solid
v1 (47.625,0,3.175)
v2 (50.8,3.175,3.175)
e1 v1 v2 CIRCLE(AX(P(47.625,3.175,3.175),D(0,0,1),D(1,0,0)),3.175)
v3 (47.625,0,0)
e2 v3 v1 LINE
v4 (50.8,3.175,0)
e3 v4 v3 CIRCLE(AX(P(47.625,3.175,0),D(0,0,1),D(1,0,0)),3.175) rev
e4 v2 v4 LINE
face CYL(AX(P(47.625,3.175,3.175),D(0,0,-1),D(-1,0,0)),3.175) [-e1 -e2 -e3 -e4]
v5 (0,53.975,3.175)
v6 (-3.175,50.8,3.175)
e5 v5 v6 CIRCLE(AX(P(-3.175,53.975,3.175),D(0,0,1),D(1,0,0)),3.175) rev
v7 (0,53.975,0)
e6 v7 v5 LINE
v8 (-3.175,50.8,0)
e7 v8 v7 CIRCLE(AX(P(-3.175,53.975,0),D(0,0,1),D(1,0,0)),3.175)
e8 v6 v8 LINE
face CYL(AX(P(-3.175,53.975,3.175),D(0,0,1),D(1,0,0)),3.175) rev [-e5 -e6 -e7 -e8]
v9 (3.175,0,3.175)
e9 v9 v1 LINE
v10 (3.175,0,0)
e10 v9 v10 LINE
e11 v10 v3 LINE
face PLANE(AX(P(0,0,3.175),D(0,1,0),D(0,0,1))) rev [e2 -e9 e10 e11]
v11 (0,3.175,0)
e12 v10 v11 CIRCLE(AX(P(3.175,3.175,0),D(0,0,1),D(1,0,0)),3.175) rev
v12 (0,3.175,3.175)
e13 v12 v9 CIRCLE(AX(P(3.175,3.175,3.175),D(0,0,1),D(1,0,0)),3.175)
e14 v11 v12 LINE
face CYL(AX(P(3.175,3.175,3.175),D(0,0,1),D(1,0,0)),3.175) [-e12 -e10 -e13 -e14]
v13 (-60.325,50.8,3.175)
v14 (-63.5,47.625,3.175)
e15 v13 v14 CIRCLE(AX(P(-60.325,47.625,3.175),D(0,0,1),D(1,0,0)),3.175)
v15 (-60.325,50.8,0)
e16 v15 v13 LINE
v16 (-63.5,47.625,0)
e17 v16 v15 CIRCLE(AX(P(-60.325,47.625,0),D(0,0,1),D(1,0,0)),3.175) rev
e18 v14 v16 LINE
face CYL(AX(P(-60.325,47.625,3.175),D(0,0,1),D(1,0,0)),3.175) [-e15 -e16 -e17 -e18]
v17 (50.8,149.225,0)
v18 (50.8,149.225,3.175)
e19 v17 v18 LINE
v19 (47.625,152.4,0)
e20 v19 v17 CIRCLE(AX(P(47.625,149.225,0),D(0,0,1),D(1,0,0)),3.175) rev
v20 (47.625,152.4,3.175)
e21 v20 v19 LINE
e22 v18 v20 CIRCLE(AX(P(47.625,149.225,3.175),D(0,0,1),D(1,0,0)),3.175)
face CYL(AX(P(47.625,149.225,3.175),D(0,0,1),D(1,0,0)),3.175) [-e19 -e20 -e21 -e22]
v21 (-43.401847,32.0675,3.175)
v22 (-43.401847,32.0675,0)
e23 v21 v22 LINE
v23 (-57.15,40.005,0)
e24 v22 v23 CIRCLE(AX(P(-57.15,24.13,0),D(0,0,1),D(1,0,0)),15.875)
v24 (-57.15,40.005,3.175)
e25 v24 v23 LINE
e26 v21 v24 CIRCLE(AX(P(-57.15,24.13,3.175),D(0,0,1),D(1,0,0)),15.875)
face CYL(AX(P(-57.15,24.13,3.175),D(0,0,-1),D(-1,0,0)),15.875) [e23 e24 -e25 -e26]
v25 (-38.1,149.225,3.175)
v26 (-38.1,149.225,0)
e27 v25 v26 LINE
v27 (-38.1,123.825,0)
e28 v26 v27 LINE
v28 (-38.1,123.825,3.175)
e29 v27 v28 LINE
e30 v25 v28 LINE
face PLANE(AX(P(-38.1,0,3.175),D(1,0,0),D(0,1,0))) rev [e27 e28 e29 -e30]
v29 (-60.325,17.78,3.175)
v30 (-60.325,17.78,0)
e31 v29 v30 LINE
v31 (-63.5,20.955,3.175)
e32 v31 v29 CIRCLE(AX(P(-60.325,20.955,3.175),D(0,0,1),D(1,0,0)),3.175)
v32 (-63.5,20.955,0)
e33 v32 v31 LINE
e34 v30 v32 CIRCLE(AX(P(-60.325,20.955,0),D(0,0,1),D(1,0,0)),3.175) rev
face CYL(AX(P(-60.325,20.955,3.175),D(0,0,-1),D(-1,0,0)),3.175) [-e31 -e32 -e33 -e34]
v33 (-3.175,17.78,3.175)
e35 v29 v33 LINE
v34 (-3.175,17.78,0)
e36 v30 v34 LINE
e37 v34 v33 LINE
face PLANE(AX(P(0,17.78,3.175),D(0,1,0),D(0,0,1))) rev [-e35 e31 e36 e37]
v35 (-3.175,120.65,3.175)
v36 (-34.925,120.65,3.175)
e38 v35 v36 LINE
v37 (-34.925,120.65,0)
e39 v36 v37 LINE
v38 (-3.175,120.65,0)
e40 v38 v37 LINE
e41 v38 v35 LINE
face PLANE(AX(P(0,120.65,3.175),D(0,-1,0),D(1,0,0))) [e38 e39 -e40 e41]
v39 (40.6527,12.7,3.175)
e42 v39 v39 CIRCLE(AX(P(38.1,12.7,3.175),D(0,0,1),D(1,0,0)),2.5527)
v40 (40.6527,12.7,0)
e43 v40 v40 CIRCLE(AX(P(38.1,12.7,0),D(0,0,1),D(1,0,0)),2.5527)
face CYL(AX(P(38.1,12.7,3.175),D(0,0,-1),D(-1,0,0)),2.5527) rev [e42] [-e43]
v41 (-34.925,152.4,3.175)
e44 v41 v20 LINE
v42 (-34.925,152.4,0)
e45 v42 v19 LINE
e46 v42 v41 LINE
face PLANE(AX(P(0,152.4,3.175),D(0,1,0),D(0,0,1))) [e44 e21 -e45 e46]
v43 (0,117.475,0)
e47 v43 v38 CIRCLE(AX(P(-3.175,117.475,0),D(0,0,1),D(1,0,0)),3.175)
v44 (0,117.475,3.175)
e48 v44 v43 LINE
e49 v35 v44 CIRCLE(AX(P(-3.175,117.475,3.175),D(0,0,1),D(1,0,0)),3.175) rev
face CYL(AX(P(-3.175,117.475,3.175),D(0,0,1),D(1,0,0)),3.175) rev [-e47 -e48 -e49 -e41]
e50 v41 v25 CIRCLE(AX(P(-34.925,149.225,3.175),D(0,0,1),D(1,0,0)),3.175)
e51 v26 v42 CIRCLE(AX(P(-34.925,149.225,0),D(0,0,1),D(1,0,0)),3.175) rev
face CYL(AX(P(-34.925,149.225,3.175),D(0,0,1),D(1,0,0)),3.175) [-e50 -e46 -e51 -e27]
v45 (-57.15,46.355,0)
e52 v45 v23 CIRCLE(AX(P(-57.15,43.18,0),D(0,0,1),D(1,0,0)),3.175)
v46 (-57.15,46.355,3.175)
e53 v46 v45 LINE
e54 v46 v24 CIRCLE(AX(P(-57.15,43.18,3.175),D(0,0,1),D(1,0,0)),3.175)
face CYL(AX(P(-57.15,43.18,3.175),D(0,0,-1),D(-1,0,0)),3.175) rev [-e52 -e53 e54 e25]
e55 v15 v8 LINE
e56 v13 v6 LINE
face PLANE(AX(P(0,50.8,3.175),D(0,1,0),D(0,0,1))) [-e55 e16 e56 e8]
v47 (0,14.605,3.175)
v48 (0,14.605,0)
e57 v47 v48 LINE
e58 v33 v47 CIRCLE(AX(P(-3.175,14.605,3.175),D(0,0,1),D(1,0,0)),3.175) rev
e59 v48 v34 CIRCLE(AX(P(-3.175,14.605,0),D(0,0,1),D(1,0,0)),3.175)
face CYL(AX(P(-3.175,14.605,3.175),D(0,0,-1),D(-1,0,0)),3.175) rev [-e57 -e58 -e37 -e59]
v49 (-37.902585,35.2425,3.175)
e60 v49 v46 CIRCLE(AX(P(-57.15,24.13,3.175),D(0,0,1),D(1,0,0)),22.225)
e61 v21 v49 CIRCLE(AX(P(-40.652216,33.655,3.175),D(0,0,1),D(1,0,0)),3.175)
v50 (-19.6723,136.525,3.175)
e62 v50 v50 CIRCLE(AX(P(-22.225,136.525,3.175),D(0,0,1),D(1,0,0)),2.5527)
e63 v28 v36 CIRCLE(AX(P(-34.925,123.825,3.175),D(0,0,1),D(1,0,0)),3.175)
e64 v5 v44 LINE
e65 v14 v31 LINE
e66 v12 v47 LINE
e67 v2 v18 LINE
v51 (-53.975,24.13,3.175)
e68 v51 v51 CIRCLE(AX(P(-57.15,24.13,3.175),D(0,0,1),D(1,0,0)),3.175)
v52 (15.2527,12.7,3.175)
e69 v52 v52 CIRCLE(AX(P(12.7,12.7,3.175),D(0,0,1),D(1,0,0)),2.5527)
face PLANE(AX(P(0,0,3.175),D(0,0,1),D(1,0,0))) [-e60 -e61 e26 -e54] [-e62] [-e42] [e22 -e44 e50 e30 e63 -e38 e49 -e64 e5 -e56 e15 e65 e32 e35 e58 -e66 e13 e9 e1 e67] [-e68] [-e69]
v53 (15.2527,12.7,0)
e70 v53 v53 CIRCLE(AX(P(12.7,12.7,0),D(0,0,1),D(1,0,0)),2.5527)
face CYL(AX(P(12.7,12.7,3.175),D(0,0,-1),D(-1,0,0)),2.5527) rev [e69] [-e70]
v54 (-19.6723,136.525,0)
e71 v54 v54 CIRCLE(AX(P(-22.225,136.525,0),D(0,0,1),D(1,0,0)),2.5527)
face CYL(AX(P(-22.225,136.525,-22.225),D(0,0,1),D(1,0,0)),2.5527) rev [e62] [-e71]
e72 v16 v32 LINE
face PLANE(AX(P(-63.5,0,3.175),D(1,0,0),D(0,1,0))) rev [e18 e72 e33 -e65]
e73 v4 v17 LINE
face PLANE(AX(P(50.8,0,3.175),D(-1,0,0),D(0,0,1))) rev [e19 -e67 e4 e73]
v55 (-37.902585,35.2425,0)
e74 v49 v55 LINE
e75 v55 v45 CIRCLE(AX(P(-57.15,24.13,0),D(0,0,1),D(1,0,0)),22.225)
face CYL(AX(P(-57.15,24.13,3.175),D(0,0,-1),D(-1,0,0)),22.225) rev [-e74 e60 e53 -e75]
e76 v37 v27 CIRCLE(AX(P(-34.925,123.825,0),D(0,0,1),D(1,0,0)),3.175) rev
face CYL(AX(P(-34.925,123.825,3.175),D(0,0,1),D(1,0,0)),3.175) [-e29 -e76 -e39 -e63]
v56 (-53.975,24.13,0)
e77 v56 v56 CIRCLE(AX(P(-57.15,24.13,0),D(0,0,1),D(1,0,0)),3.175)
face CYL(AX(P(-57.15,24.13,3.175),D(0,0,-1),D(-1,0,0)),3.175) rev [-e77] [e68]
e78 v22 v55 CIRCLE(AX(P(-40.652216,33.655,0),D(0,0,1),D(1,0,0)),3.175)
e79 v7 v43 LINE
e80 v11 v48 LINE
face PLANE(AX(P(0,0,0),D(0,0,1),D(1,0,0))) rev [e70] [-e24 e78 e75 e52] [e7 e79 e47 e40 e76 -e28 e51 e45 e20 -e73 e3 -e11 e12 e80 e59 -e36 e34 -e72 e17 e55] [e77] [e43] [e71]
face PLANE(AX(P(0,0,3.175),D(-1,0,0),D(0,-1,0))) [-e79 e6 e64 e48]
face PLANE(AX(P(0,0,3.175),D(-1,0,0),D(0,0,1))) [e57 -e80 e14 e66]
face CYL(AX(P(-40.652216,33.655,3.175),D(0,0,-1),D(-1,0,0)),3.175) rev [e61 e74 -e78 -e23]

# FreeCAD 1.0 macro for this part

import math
import FreeCAD as App
import Part
import Sketcher
from FreeCAD import Vector
Q = App.Units.Quantity


def edges_at(feature, points):
    """Names of the edges that pass closest to the given points."""
    edges = feature.Shape.Edges
    near = lambda p: min(range(len(edges)), key=lambda i: edges[i].distToShape(Part.Vertex(*p))[0])
    return sorted({f"Edge{near(p) + 1}" for p in points})

doc = App.newDocument("Part")
body = doc.addObject("PartDesign::Body", "Body")

sketch1 = doc.addObject("Sketcher::SketchObject", "Sketch")
body.addObject(sketch1)
sketch1.AttachmentSupport = (doc.XY_Plane, [""])
sketch1.MapMode = "FlatFace"
sketch1.addGeometry(Part.LineSegment(Vector(0, 17.78, 0), Vector(0, 0, 0)), False)
sketch1.addGeometry(Part.LineSegment(Vector(0, 0, 0), Vector(50.8, 0, 0)), False)
sketch1.addGeometry(Part.LineSegment(Vector(50.8, 0, 0), Vector(50.8, 50.8, 0)), False)
sketch1.addGeometry(Part.LineSegment(Vector(50.8, 50.8, 0), Vector(-63.5, 50.8, 0)), False)
sketch1.addGeometry(Part.LineSegment(Vector(-63.5, 50.8, 0), Vector(-63.5, 17.78, 0)), False)
sketch1.addGeometry(Part.LineSegment(Vector(-63.5, 17.78, 0), Vector(0, 17.78, 0)), False)
sketch1.addGeometry(Part.Circle(Vector(12.7, 12.7, 0), Vector(0, 0, 1), 2.5527), False)
sketch1.addGeometry(Part.Circle(Vector(38.1, 12.7, 0), Vector(0, 0, 1), 2.5527), False)
sketch1.addGeometry(Part.ArcOfCircle(Part.Circle(Vector(-57.15, 24.13, 0), Vector(0, 0, 1), 22.225), math.radians(30), math.radians(90)), False)
sketch1.addGeometry(Part.ArcOfCircle(Part.Circle(Vector(-40.652216, 33.655, 0), Vector(0, 0, 1), 3.175), math.radians(-150), math.radians(30)), False)
sketch1.addGeometry(Part.ArcOfCircle(Part.Circle(Vector(-57.15, 24.13, 0), Vector(0, 0, 1), 15.875), math.radians(30), math.radians(90)), False)
sketch1.addGeometry(Part.ArcOfCircle(Part.Circle(Vector(-57.15, 43.18, 0), Vector(0, 0, 1), 3.175), math.radians(90), math.radians(270)), False)
sketch1.addGeometry(Part.Circle(Vector(-57.15, 24.13, 0), Vector(0, 0, 1), 3.175), False)
sketch1.addConstraint(Sketcher.Constraint("Coincident", 0, 2, 1, 1))
sketch1.addConstraint(Sketcher.Constraint("Coincident", 1, 2, 2, 1))
sketch1.addConstraint(Sketcher.Constraint("Coincident", 2, 2, 3, 1))
sketch1.addConstraint(Sketcher.Constraint("Coincident", 3, 2, 4, 1))
sketch1.addConstraint(Sketcher.Constraint("Coincident", 4, 2, 5, 1))
sketch1.addConstraint(Sketcher.Constraint("Coincident", 5, 2, 0, 1))
sketch1.addConstraint(Sketcher.Constraint("Tangent", 8, 1, 9, 2))
sketch1.addConstraint(Sketcher.Constraint("Tangent", 9, 1, 10, 1))
sketch1.addConstraint(Sketcher.Constraint("Tangent", 10, 2, 11, 2))
sketch1.addConstraint(Sketcher.Constraint("Tangent", 11, 1, 8, 2))
sketch1.addConstraint(Sketcher.Constraint("Vertical", 0))
sketch1.addConstraint(Sketcher.Constraint("Horizontal", 1))
sketch1.addConstraint(Sketcher.Constraint("Vertical", 2))
sketch1.addConstraint(Sketcher.Constraint("Horizontal", 3))
sketch1.addConstraint(Sketcher.Constraint("Vertical", 4))
sketch1.addConstraint(Sketcher.Constraint("Horizontal", 5))
sketch1.addConstraint(Sketcher.Constraint("Coincident", 0, 2, -1, 1))
sketch1.addConstraint(Sketcher.Constraint("Coincident", 10, 3, 8, 3))
sketch1.addConstraint(Sketcher.Constraint("Coincident", 12, 3, 8, 3))
sketch1.addConstraint(Sketcher.Constraint("Equal", 6, 7))
sketch1.addConstraint(Sketcher.Constraint("Equal", 11, 12))
sketch1.addConstraint(Sketcher.Constraint("Horizontal", 6, 3, 7, 3))
sketch1.addConstraint(Sketcher.Constraint("Vertical", 10, 3, 11, 3))
sketch1.addConstraint(Sketcher.Constraint("Equal", 1, 2))
sketch1.addConstraint(Sketcher.Constraint("Diameter", 12, Q("0.25 in")))
sketch1.addConstraint(Sketcher.Constraint("DistanceX", 1, 1, 1, 2, Q("2 in")))
sketch1.addConstraint(Sketcher.Constraint("Diameter", 6, Q("0.201 in")))
sketch1.addConstraint(Sketcher.Constraint("DistanceX", 3, 2, 3, 1, Q("4.5 in")))
sketch1.addConstraint(Sketcher.Constraint("DistanceY", 0, 2, 0, 1, Q("0.7 in")))
sketch1.addConstraint(Sketcher.Constraint("Radius", 8, Q("0.875 in")))
sketch1.addConstraint(Sketcher.Constraint("DistanceX", 6, 3, 7, 3, Q("1 in")))
sketch1.addConstraint(Sketcher.Constraint("DistanceY", 4, 2, 11, 3, Q("1 in")))
sketch1.addConstraint(Sketcher.Constraint("DistanceX", -1, 1, 6, 3, Q("0.5 in")))
sketch1.addConstraint(Sketcher.Constraint("DistanceY", -1, 1, 6, 3, Q("0.5 in")))
sketch1.addConstraint(Sketcher.Constraint("DistanceY", 9, 3, 11, 1, Q("0.5 in")))
sketch1.addConstraint(Sketcher.Constraint("DistanceX", 8, 3, -1, 1, Q("2.25 in")))
pad1 = doc.addObject("PartDesign::Pad", "Pad")
body.addObject(pad1)
pad1.Profile = sketch1
pad1.Length = Q("0.125 in")

sketch2 = doc.addObject("Sketcher::SketchObject", "Sketch001")
body.addObject(sketch2)
sketch2.AttachmentSupport = (doc.XY_Plane, [""])
sketch2.MapMode = "FlatFace"
sketch2.addGeometry(Part.LineSegment(Vector(0, 120.65, 0), Vector(0, 50.8, 0)), False)
sketch2.addGeometry(Part.LineSegment(Vector(0, 50.8, 0), Vector(50.8, 50.8, 0)), False)
sketch2.addGeometry(Part.LineSegment(Vector(50.8, 50.8, 0), Vector(50.8, 152.4, 0)), False)
sketch2.addGeometry(Part.LineSegment(Vector(50.8, 152.4, 0), Vector(-38.1, 152.4, 0)), False)
sketch2.addGeometry(Part.LineSegment(Vector(-38.1, 152.4, 0), Vector(-38.1, 120.65, 0)), False)
sketch2.addGeometry(Part.LineSegment(Vector(-38.1, 120.65, 0), Vector(0, 120.65, 0)), False)
sketch2.addConstraint(Sketcher.Constraint("Coincident", 0, 2, 1, 1))
sketch2.addConstraint(Sketcher.Constraint("Coincident", 1, 2, 2, 1))
sketch2.addConstraint(Sketcher.Constraint("Coincident", 2, 2, 3, 1))
sketch2.addConstraint(Sketcher.Constraint("Coincident", 3, 2, 4, 1))
sketch2.addConstraint(Sketcher.Constraint("Coincident", 4, 2, 5, 1))
sketch2.addConstraint(Sketcher.Constraint("Coincident", 5, 2, 0, 1))
sketch2.addConstraint(Sketcher.Constraint("Vertical", 0))
sketch2.addConstraint(Sketcher.Constraint("Horizontal", 1))
sketch2.addConstraint(Sketcher.Constraint("Vertical", 2))
sketch2.addConstraint(Sketcher.Constraint("Horizontal", 3))
sketch2.addConstraint(Sketcher.Constraint("Vertical", 4))
sketch2.addConstraint(Sketcher.Constraint("Horizontal", 5))
sketch2.addConstraint(Sketcher.Constraint("PointOnObject", 0, 2, -2))
sketch2.addConstraint(Sketcher.Constraint("DistanceX", 1, 1, 1, 2, Q("2 in")))
sketch2.addConstraint(Sketcher.Constraint("DistanceY", 2, 1, 2, 2, Q("4 in")))
sketch2.addConstraint(Sketcher.Constraint("DistanceX", 3, 2, 3, 1, Q("3.5 in")))
sketch2.addConstraint(Sketcher.Constraint("DistanceY", -1, 1, 0, 2, Q("2 in")))
sketch2.addConstraint(Sketcher.Constraint("DistanceY", 0, 2, 0, 1, Q("2.75 in")))
pad2 = doc.addObject("PartDesign::Pad", "Pad001")
body.addObject(pad2)
pad2.Profile = sketch2
pad2.Length = Q("0.125 in")
doc.recompute()

fillet = doc.addObject("PartDesign::Fillet", "Fillet")
body.addObject(fillet)
fillet.Base = (pad2, edges_at(pad2, [
    (0, 0, 1.587),
    (0, 17.78, 1.587),
    (-63.5, 17.78, 1.587),
    (-63.5, 50.8, 1.587),
    (50.8, 0, 1.587),
    (0, 50.8, 1.587),
    (50.8, 152.4, 1.587),
    (-38.1, 152.4, 1.587),
    (-38.1, 120.65, 1.587),
    (0, 120.65, 1.587),
]))
fillet.Radius = Q("0.125 in")

sketch3 = doc.addObject("Sketcher::SketchObject", "Sketch002")
body.addObject(sketch3)
sketch3.AttachmentSupport = (doc.XY_Plane, [""])
sketch3.MapMode = "FlatFace"
sketch3.AttachmentOffset = App.Placement(Vector(0, 0, 0.125 * 25.4), App.Rotation())
sketch3.addGeometry(Part.Circle(Vector(-22.225, 136.525, 0), Vector(0, 0, 1), 2.5527), False)
sketch3.addConstraint(Sketcher.Constraint("Diameter", 0, Q("0.201 in")))
sketch3.addConstraint(Sketcher.Constraint("DistanceX", 0, 3, -1, 1, Q("0.875 in")))
sketch3.addConstraint(Sketcher.Constraint("DistanceY", -1, 1, 0, 3, Q("5.375 in")))
pocket1 = doc.addObject("PartDesign::Pocket", "Pocket")
body.addObject(pocket1)
pocket1.Profile = sketch3
pocket1.Length = Q("1 in")

doc.recompute()
